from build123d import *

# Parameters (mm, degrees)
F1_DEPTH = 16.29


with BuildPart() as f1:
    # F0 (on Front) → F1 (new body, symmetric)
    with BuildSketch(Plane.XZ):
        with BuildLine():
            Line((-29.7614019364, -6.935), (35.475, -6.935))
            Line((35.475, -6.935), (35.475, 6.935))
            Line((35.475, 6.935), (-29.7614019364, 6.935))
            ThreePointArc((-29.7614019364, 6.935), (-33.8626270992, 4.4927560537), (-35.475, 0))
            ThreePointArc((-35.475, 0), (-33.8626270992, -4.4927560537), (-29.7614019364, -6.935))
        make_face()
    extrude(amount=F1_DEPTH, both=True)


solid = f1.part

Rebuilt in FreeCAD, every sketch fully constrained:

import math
import FreeCAD as App
import Part
import Sketcher

V = App.Vector

doc = App.newDocument("Part")
body = doc.addObject("PartDesign::Body", "Body")

sketch1 = body.newObject("Sketcher::SketchObject", "Sketch")
sketch1.AttachmentSupport = (doc.getObject("XZ_Plane"), [""])
sketch1.MapMode = "FlatFace"
sketch1.addGeometry([
    Part.LineSegment(V(-30, -7, 0), V(35, -7, 0)),
    Part.LineSegment(V(35, -7, 0), V(35, 7, 0)),
    Part.LineSegment(V(35, 7, 0), V(-30, 7, 0)),
    Part.ArcOfCircle(Part.Circle(V(-28, 0, 0), V(0, 0, 1), 7), math.radians(101), math.radians(180)),
    Part.ArcOfCircle(Part.Circle(V(-28, 0, 0), V(0, 0, 1), 7), math.radians(180), math.radians(259)),
], False)
sketch1.addConstraint([
    Sketcher.Constraint("Coincident", 0, 2, 1, 1),
    Sketcher.Constraint("Coincident", 1, 2, 2, 1),
    Sketcher.Constraint("Coincident", 2, 2, 3, 1),
    Sketcher.Constraint("Tangent", 3, 2, 4, 1),
    Sketcher.Constraint("Coincident", 4, 2, 0, 1),
    Sketcher.Constraint("Horizontal", 0),
    Sketcher.Constraint("Vertical", 1),
    Sketcher.Constraint("Horizontal", 2),
    Sketcher.Constraint("Equal", 3, 4),
    Sketcher.Constraint("Symmetric", 2, 2, 4, 2, -1),
    Sketcher.Constraint("PointOnObject", 3, 2, -1),
    Sketcher.Constraint("DistanceY", 1, 1, 1, 2, 13.87),
    Sketcher.Constraint("Radius", 3, 7.06555),
    Sketcher.Constraint("DistanceX", 3, 2, 0, 2, 70.95),
    Sketcher.Constraint("DistanceX", -1, 1, 0, 2, 35.475),
])
pad1 = body.newObject("PartDesign::Pad", "Pad")
pad1.Profile = sketch1
pad1.Length = 32.58
pad1.Midplane = True

doc.recompute()
